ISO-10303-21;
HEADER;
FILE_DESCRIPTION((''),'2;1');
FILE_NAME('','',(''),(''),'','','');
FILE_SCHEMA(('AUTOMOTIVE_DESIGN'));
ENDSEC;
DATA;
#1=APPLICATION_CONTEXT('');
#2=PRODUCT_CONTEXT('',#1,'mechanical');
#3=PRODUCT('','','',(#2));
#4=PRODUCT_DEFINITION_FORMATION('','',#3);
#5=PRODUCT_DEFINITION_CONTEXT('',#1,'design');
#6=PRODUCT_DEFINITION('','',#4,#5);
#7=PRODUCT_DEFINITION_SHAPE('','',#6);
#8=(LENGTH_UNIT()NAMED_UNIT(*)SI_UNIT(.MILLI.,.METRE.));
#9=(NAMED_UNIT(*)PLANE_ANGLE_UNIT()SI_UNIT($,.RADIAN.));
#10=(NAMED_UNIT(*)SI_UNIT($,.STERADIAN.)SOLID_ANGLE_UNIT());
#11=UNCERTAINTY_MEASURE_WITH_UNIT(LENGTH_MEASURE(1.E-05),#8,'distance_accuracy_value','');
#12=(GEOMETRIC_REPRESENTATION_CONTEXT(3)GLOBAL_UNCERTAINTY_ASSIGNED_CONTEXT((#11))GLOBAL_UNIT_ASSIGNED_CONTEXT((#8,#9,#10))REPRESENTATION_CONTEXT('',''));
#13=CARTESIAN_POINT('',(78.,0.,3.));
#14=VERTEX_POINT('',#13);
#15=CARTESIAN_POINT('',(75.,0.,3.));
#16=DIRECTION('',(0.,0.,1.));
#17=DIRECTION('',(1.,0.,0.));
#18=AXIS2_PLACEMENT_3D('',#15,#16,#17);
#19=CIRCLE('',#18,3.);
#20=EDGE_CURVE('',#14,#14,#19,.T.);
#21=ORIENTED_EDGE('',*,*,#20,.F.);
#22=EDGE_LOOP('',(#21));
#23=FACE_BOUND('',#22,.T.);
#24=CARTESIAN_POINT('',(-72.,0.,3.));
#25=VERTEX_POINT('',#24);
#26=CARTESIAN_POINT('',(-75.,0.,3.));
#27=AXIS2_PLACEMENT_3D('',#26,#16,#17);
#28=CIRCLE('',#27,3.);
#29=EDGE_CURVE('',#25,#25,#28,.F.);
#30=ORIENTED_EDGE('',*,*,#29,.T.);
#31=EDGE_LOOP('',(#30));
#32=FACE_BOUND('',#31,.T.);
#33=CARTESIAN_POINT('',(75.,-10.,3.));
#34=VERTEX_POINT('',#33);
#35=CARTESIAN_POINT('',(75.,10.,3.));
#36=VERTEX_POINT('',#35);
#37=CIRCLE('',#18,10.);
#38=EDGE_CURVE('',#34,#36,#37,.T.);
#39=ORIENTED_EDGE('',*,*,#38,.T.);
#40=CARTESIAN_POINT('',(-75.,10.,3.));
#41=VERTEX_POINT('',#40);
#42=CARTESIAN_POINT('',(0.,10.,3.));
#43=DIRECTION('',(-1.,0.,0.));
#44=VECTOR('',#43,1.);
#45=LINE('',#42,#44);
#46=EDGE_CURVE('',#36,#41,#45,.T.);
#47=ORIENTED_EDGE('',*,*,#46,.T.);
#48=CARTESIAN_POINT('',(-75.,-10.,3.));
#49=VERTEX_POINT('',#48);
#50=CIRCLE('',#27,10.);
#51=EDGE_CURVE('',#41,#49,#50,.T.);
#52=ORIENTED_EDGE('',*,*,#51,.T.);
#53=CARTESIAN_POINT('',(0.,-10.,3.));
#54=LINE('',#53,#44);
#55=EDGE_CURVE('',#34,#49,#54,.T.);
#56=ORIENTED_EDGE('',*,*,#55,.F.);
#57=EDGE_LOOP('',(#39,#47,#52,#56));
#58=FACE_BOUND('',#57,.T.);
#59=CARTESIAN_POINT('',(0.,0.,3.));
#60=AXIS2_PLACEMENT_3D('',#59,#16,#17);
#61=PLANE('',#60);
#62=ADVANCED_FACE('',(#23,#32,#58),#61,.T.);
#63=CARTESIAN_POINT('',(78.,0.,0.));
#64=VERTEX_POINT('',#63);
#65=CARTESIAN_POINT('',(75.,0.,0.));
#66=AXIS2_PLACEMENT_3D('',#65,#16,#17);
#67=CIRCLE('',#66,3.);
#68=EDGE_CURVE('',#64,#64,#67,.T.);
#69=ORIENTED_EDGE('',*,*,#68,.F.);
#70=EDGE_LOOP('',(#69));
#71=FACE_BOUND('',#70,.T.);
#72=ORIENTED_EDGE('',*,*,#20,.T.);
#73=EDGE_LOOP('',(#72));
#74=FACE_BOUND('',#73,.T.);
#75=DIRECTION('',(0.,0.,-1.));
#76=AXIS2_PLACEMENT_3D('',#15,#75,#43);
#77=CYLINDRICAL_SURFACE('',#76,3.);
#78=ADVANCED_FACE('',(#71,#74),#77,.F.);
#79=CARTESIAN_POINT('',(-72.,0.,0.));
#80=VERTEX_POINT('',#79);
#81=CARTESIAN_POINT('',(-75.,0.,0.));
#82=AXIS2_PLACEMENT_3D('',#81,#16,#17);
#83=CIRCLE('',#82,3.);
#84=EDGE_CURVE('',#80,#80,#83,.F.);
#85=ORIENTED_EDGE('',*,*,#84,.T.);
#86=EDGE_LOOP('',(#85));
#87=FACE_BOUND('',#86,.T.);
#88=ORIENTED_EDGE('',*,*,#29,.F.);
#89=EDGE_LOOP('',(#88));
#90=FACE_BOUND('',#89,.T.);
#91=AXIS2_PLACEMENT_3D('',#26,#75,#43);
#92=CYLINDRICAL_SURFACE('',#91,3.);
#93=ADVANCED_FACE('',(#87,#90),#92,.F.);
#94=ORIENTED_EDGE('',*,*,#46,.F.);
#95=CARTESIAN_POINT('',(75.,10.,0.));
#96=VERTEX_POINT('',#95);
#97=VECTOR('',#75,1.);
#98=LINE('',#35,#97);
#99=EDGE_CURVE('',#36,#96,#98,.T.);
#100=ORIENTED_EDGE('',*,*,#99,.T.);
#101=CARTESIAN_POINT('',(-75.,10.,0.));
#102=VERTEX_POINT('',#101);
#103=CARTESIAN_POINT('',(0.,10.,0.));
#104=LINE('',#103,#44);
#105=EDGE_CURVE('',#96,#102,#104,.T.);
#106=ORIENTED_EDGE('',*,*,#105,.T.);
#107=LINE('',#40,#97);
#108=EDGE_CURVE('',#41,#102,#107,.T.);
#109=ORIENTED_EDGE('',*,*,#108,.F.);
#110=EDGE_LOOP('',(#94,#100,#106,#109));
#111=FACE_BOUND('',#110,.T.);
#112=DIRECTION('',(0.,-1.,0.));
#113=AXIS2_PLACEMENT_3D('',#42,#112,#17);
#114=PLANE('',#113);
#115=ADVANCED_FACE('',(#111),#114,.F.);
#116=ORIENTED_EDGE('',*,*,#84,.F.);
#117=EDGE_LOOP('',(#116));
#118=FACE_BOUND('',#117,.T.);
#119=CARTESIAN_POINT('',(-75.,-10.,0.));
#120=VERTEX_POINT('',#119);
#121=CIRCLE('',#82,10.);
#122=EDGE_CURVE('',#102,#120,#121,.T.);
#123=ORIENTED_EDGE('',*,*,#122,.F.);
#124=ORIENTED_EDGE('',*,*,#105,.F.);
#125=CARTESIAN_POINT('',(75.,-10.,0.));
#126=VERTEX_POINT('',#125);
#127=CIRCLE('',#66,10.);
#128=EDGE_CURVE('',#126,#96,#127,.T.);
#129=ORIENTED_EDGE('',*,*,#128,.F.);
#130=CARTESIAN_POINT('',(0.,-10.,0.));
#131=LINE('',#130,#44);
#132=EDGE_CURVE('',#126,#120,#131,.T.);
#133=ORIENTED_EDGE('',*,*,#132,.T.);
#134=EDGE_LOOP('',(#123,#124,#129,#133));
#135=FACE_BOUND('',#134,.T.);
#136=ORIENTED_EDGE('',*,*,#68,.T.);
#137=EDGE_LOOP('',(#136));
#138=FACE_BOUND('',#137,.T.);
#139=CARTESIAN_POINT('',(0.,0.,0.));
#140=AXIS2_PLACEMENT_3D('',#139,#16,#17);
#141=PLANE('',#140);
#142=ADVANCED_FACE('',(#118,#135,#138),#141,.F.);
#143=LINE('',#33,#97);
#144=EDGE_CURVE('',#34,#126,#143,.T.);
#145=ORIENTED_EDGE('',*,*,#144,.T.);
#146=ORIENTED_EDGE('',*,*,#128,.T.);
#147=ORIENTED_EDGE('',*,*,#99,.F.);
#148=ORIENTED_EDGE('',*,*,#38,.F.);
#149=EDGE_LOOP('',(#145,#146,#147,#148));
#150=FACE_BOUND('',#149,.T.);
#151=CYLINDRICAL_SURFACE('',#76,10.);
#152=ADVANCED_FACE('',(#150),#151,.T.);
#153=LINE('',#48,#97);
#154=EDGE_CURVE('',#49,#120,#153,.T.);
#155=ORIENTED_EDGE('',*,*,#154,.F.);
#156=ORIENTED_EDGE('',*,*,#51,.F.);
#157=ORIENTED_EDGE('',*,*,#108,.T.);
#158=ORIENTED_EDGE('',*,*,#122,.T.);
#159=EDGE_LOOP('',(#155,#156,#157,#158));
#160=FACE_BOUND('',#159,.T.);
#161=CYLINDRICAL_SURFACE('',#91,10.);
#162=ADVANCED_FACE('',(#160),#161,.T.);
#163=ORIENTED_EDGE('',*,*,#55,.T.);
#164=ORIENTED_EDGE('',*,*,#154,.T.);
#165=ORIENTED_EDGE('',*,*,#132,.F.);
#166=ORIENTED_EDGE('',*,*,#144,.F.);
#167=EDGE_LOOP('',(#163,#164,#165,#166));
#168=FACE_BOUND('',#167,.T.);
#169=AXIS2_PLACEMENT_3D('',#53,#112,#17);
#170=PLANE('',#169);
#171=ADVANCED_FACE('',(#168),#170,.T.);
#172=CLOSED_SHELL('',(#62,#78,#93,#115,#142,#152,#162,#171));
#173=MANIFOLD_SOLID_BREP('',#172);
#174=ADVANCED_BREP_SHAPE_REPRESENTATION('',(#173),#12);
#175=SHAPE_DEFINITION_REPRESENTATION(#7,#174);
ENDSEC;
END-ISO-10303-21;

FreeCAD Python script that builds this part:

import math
import FreeCAD as App
import Part
import Sketcher
from FreeCAD import Vector
Q = App.Units.Quantity

doc = App.newDocument("Part")
body = doc.addObject("PartDesign::Body", "Body")

# Sketch on XY plane
sketch1 = doc.addObject("Sketcher::SketchObject", "Sketch")
body.addObject(sketch1)
sketch1.AttachmentSupport = (doc.XY_Plane, [""])
sketch1.MapMode = "FlatFace"
sketch1.addGeometry([
    Part.LineSegment(Vector(-75, -10, 0), Vector(75, -10, 0)),  # 0
    Part.ArcOfCircle(Part.Circle(Vector(75, 0, 0), Vector(0, 0, 1), 10), math.radians(-90), math.radians(90)),  # 1
    Part.LineSegment(Vector(75, 10, 0), Vector(-75, 10, 0)),  # 2
    Part.ArcOfCircle(Part.Circle(Vector(-75, 0, 0), Vector(0, 0, 1), 10), math.radians(90), math.radians(270)),  # 3
    Part.Circle(Vector(-75, 0, 0), Vector(0, 0, 1), 3),  # 4
    Part.Circle(Vector(75, 0, 0), Vector(0, 0, 1), 3),  # 5
], False)
sketch1.addConstraint([
    Sketcher.Constraint("Tangent", 0, 2, 1, 1),
    Sketcher.Constraint("Tangent", 1, 2, 2, 1),
    Sketcher.Constraint("Tangent", 2, 2, 3, 1),
    Sketcher.Constraint("Tangent", 3, 2, 0, 1),
    Sketcher.Constraint("Horizontal", 0),
    Sketcher.Constraint("Horizontal", 2),
    Sketcher.Constraint("Coincident", 4, 3, 3, 3),
    Sketcher.Constraint("Coincident", 5, 3, 1, 3),
    Sketcher.Constraint("Equal", 4, 5),
    Sketcher.Constraint("Symmetric", 1, 3, 3, 3, -1, 1),
    Sketcher.Constraint("Diameter", 4, Q("6 mm")),
    Sketcher.Constraint("Radius", 1, Q("10 mm")),
    Sketcher.Constraint("DistanceX", 0, 1, 0, 2, Q("150 mm")),
])
pad1 = doc.addObject("PartDesign::Pad", "Pad")
body.addObject(pad1)
pad1.Profile = sketch1
pad1.Length = 3

doc.recompute()
